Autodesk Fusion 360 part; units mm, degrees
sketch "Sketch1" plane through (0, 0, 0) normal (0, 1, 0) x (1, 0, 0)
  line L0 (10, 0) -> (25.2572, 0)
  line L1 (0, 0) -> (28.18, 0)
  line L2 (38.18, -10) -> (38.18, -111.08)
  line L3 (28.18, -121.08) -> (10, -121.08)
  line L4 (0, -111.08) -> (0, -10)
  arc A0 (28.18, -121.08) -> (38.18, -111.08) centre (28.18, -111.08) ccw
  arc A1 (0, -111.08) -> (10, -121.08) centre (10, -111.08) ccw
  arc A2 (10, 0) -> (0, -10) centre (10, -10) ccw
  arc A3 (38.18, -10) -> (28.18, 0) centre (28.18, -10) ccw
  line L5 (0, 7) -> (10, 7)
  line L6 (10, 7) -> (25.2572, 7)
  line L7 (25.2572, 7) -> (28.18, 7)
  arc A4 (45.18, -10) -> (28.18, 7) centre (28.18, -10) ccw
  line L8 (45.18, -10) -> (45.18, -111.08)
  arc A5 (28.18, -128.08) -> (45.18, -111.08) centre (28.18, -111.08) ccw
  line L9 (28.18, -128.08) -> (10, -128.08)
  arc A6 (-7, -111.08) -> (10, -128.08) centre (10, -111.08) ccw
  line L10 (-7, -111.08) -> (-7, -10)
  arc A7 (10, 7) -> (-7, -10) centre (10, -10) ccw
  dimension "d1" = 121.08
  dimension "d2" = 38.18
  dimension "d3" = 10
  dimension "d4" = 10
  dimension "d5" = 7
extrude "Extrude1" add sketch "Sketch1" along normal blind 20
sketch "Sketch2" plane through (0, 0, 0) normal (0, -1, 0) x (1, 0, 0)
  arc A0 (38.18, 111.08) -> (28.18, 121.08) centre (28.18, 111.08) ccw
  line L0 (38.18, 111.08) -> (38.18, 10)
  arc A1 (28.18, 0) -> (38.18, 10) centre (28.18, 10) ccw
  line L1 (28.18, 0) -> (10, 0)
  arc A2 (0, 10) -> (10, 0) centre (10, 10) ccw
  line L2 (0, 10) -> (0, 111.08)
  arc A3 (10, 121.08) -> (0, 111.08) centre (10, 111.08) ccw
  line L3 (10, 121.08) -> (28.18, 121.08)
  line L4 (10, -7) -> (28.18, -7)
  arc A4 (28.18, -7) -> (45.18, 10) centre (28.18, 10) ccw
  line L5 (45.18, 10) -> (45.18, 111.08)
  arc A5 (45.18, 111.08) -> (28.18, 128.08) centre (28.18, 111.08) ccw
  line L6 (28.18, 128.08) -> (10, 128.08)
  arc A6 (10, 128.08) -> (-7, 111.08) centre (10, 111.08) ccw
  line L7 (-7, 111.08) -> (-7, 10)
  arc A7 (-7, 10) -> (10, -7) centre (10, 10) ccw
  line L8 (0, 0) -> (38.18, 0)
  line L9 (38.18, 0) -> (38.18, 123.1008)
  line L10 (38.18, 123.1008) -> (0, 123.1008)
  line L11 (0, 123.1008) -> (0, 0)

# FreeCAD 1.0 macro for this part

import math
import FreeCAD as App
import Part
import Sketcher
from FreeCAD import Vector

doc = App.newDocument("Part")
body = doc.addObject("PartDesign::Body", "Body")

sketch1 = doc.addObject("Sketcher::SketchObject", "Sketch")
body.addObject(sketch1)
sketch1.AttachmentSupport = (doc.XZ_Plane, [""])
sketch1.MapMode = "FlatFace"
sketch1.addGeometry(Part.LineSegment(Vector(28.18, -7, 0), Vector(10, -7, 0)), False)
sketch1.addGeometry(Part.ArcOfCircle(Part.Circle(Vector(10, 10, 0), Vector(0, 0, 1), 17), math.radians(180), math.radians(270)), False)
sketch1.addGeometry(Part.LineSegment(Vector(-7, 10, 0), Vector(-7, 111.08, 0)), False)
sketch1.addGeometry(Part.ArcOfCircle(Part.Circle(Vector(10, 111.08, 0), Vector(0, 0, 1), 17), math.radians(90), math.radians(180)), False)
sketch1.addGeometry(Part.LineSegment(Vector(10, 128.08, 0), Vector(28.18, 128.08, 0)), False)
sketch1.addGeometry(Part.ArcOfCircle(Part.Circle(Vector(28.18, 111.08, 0), Vector(0, 0, 1), 17), math.radians(0), math.radians(90)), False)
sketch1.addGeometry(Part.LineSegment(Vector(45.18, 111.08, 0), Vector(45.18, 10, 0)), False)
sketch1.addGeometry(Part.ArcOfCircle(Part.Circle(Vector(28.18, 10, 0), Vector(0, 0, 1), 17), math.radians(-90), math.radians(0)), False)
sketch1.addGeometry(Part.ArcOfCircle(Part.Circle(Vector(10, 10, 0), Vector(0, 0, 1), 10), math.radians(180), math.radians(270)), False)
sketch1.addGeometry(Part.LineSegment(Vector(10, 0, 0), Vector(28.18, 0, 0)), False)
sketch1.addGeometry(Part.ArcOfCircle(Part.Circle(Vector(28.18, 10, 0), Vector(0, 0, 1), 10), math.radians(-90), math.radians(0)), False)
sketch1.addGeometry(Part.LineSegment(Vector(38.18, 10, 0), Vector(38.18, 111.08, 0)), False)
sketch1.addGeometry(Part.ArcOfCircle(Part.Circle(Vector(28.18, 111.08, 0), Vector(0, 0, 1), 10), math.radians(0), math.radians(90)), False)
sketch1.addGeometry(Part.LineSegment(Vector(28.18, 121.08, 0), Vector(10, 121.08, 0)), False)
sketch1.addGeometry(Part.ArcOfCircle(Part.Circle(Vector(10, 111.08, 0), Vector(0, 0, 1), 10), math.radians(90), math.radians(180)), False)
sketch1.addGeometry(Part.LineSegment(Vector(0, 111.08, 0), Vector(0, 10, 0)), False)
sketch1.addConstraint(Sketcher.Constraint("Tangent", 0, 2, 1, 2))
sketch1.addConstraint(Sketcher.Constraint("Tangent", 1, 1, 2, 1))
sketch1.addConstraint(Sketcher.Constraint("Tangent", 2, 2, 3, 2))
sketch1.addConstraint(Sketcher.Constraint("Tangent", 3, 1, 4, 1))
sketch1.addConstraint(Sketcher.Constraint("Tangent", 4, 2, 5, 2))
sketch1.addConstraint(Sketcher.Constraint("Tangent", 5, 1, 6, 1))
sketch1.addConstraint(Sketcher.Constraint("Tangent", 6, 2, 7, 2))
sketch1.addConstraint(Sketcher.Constraint("Tangent", 7, 1, 0, 1))
sketch1.addConstraint(Sketcher.Constraint("Tangent", 8, 2, 9, 1))
sketch1.addConstraint(Sketcher.Constraint("Tangent", 9, 2, 10, 1))
sketch1.addConstraint(Sketcher.Constraint("Tangent", 10, 2, 11, 1))
sketch1.addConstraint(Sketcher.Constraint("Tangent", 11, 2, 12, 1))
sketch1.addConstraint(Sketcher.Constraint("Tangent", 12, 2, 13, 1))
sketch1.addConstraint(Sketcher.Constraint("Tangent", 13, 2, 14, 1))
sketch1.addConstraint(Sketcher.Constraint("Tangent", 14, 2, 15, 1))
sketch1.addConstraint(Sketcher.Constraint("Tangent", 15, 2, 8, 1))
sketch1.addConstraint(Sketcher.Constraint("Horizontal", 0))
sketch1.addConstraint(Sketcher.Constraint("Vertical", 2))
sketch1.addConstraint(Sketcher.Constraint("Horizontal", 4))
sketch1.addConstraint(Sketcher.Constraint("Vertical", 6))
sketch1.addConstraint(Sketcher.Constraint("Horizontal", 9))
sketch1.addConstraint(Sketcher.Constraint("Vertical", 11))
sketch1.addConstraint(Sketcher.Constraint("Horizontal", 13))
sketch1.addConstraint(Sketcher.Constraint("Vertical", 15))
sketch1.addConstraint(Sketcher.Constraint("Coincident", 8, 3, 1, 3))
sketch1.addConstraint(Sketcher.Constraint("Coincident", 10, 3, 7, 3))
sketch1.addConstraint(Sketcher.Constraint("Coincident", 12, 3, 5, 3))
sketch1.addConstraint(Sketcher.Constraint("Equal", 1, 3))
sketch1.addConstraint(Sketcher.Constraint("Equal", 3, 5))
sketch1.addConstraint(Sketcher.Constraint("Equal", 5, 7))
sketch1.addConstraint(Sketcher.Constraint("Equal", 12, 14))
sketch1.addConstraint(Sketcher.Constraint("PointOnObject", 8, 2, -1))
sketch1.addConstraint(Sketcher.Constraint("PointOnObject", 14, 2, -2))
sketch1.addConstraint(Sketcher.Constraint("Radius", 8, 10.0))
sketch1.addConstraint(Sketcher.Constraint("DistanceY", 0, 2, -1, 1, 7.0))
sketch1.addConstraint(Sketcher.Constraint("DistanceX", -1, 1, 10, 2, 38.18))
sketch1.addConstraint(Sketcher.Constraint("DistanceY", -1, 1, 12, 2, 121.08))
pad1 = doc.addObject("PartDesign::Pad", "Pad")
body.addObject(pad1)
pad1.Profile = sketch1
pad1.Length = 20
pad1.Reversed = True

doc.recompute()
